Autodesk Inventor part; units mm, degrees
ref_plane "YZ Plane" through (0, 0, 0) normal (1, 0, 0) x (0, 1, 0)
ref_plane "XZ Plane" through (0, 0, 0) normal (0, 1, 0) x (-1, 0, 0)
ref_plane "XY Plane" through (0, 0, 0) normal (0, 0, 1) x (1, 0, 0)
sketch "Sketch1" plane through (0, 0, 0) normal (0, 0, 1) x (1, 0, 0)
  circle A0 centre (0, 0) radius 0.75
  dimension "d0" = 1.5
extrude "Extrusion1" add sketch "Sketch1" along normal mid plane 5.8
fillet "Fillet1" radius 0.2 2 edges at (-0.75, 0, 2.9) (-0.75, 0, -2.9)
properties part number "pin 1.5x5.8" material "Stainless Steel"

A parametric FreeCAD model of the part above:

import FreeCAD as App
import Part
import Sketcher


def edges_at(feature, points):
    """Names of the edges that pass closest to the given points."""
    edges = feature.Shape.Edges
    near = lambda p: min(range(len(edges)), key=lambda i: edges[i].distToShape(Part.Vertex(*p))[0])
    return sorted({f"Edge{near(p) + 1}" for p in points})

doc = App.newDocument("Part")
body = doc.addObject("PartDesign::Body", "Body")

# Sketch on XY plane
sketch1 = doc.addObject("Sketcher::SketchObject", "Sketch")
body.addObject(sketch1)
sketch1.AttachmentSupport = (doc.XY_Plane, [""])
sketch1.MapMode = "FlatFace"
sketch1.addGeometry(Part.Circle(App.Vector(0, 0, 0), App.Vector(0, 0, 1), 0.8), False)
sketch1.addConstraint(Sketcher.Constraint("Coincident", 0, 3, -1, 1))
sketch1.addConstraint(Sketcher.Constraint("Diameter", 0, 1.5))
pad1 = doc.addObject("PartDesign::Pad", "Pad")
body.addObject(pad1)
pad1.Profile = sketch1
pad1.Length = 5.8
pad1.Midplane = True
doc.recompute()

fillet = doc.addObject("PartDesign::Fillet", "Fillet")
body.addObject(fillet)
fillet.Base = (pad1, edges_at(pad1, [(-0.75, 0, 2.9), (-0.75, 0, -2.9)]))
fillet.Radius = 0.2

doc.recompute()
